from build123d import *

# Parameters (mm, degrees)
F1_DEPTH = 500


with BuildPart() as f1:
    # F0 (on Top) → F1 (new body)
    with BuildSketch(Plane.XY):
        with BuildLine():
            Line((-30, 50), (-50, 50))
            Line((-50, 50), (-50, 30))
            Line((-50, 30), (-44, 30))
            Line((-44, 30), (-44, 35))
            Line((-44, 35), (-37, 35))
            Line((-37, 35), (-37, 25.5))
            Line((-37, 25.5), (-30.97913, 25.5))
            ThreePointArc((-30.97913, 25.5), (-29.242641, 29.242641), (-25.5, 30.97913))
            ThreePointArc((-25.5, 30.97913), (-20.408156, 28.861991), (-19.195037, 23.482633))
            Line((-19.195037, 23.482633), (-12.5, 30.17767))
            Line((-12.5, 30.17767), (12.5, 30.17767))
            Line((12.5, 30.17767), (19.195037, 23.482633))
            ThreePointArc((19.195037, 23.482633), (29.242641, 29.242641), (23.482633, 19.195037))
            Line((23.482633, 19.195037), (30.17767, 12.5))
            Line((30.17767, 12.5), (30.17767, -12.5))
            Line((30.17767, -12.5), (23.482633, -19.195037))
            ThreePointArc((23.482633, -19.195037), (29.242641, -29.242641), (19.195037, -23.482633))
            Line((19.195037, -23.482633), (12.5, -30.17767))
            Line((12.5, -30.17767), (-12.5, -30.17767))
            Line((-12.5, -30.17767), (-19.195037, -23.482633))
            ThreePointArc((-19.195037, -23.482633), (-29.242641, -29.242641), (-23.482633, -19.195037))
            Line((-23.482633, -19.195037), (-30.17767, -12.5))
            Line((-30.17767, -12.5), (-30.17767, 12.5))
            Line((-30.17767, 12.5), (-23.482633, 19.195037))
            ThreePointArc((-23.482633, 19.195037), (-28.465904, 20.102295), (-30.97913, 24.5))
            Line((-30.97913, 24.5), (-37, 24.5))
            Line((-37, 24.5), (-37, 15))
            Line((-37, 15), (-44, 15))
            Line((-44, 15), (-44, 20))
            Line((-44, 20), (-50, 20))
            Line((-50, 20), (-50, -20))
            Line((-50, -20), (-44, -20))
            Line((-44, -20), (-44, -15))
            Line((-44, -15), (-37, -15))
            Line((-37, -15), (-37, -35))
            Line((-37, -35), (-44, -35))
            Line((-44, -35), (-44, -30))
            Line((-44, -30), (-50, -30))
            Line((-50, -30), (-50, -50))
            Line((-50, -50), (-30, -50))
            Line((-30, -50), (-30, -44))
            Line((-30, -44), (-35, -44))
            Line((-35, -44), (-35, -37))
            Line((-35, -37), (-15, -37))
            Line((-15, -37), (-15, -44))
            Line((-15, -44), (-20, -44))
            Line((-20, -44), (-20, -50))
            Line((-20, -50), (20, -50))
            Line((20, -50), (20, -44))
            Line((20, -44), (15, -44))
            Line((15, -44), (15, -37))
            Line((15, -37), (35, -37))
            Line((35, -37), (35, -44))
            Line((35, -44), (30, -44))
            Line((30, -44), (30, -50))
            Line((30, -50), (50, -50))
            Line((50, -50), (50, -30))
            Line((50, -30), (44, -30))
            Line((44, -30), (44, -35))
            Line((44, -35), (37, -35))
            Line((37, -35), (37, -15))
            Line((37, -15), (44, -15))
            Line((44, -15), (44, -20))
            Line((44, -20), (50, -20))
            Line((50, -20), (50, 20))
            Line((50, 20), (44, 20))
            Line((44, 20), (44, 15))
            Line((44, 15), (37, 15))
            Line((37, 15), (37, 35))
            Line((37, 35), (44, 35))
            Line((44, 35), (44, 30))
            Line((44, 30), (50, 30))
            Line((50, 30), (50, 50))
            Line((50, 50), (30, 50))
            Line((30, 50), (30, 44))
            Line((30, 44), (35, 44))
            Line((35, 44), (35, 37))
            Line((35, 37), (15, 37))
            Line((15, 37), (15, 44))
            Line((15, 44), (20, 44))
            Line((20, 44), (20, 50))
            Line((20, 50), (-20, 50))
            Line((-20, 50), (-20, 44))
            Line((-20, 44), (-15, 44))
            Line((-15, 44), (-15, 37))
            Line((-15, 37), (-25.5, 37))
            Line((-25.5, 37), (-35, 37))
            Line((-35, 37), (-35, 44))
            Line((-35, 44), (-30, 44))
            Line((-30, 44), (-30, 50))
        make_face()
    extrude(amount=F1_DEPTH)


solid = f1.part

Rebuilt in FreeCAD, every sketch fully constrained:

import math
import FreeCAD as App
import Part
import Sketcher
Q = App.Units.Quantity

doc = App.newDocument("Part")
body = doc.addObject("PartDesign::Body", "Body")

# Sketch on XY plane
sketch1 = body.newObject("Sketcher::SketchObject", "Sketch")
sketch1.AttachmentSupport = (doc.getObject("XY_Plane"), [""])
sketch1.MapMode = "FlatFace"
sketch1.addGeometry([
    Part.LineSegment(App.Vector(-30, 50, 0), App.Vector(-50, 50, 0)),  # 0
    Part.LineSegment(App.Vector(-50, 50, 0), App.Vector(-50, 30, 0)),  # 1
    Part.LineSegment(App.Vector(-50, 30, 0), App.Vector(-44, 30, 0)),  # 2
    Part.LineSegment(App.Vector(-44, 30, 0), App.Vector(-44, 35, 0)),  # 3
    Part.LineSegment(App.Vector(-44, 35, 0), App.Vector(-37, 35, 0)),  # 4
    Part.LineSegment(App.Vector(-37, 35, 0), App.Vector(-37, 26, 0)),  # 5
    Part.LineSegment(App.Vector(-37, 26, 0), App.Vector(-31, 26, 0)),  # 6
    Part.ArcOfCircle(Part.Circle(App.Vector(-25, 25, 0), App.Vector(0, 0, 1), 6), math.radians(95), math.radians(175)),  # 7
    Part.ArcOfCircle(Part.Circle(App.Vector(-25, 25, 0), App.Vector(0, 0, 1), 6), math.radians(-15), math.radians(95)),  # 8
    Part.LineSegment(App.Vector(-19, 23, 0), App.Vector(-12, 30, 0)),  # 9
    Part.LineSegment(App.Vector(-12, 30, 0), App.Vector(12, 30, 0)),  # 10
    Part.LineSegment(App.Vector(12, 30, 0), App.Vector(19, 23, 0)),  # 11
    Part.ArcOfCircle(Part.Circle(App.Vector(25, 25, 0), App.Vector(0, 0, 1), 6), math.radians(-105), math.radians(195)),  # 12
    Part.LineSegment(App.Vector(23, 19, 0), App.Vector(30, 12, 0)),  # 13
    Part.LineSegment(App.Vector(30, 12, 0), App.Vector(30, -12, 0)),  # 14
    Part.LineSegment(App.Vector(30, -12, 0), App.Vector(23, -19, 0)),  # 15
    Part.ArcOfCircle(Part.Circle(App.Vector(25, -25, 0), App.Vector(0, 0, 1), 6), math.radians(165), math.radians(465)),  # 16
    Part.LineSegment(App.Vector(19, -23, 0), App.Vector(12, -30, 0)),  # 17
    Part.LineSegment(App.Vector(12, -30, 0), App.Vector(-12, -30, 0)),  # 18
    Part.LineSegment(App.Vector(-12, -30, 0), App.Vector(-19, -23, 0)),  # 19
    Part.ArcOfCircle(Part.Circle(App.Vector(-25, -25, 0), App.Vector(0, 0, 1), 6), math.radians(75), math.radians(375)),  # 20
    Part.LineSegment(App.Vector(-23, -19, 0), App.Vector(-30, -12, 0)),  # 21
    Part.LineSegment(App.Vector(-30, -12, 0), App.Vector(-30, 12, 0)),  # 22
    Part.LineSegment(App.Vector(-30, 12, 0), App.Vector(-23, 19, 0)),  # 23
    Part.ArcOfCircle(Part.Circle(App.Vector(-25, 25, 0), App.Vector(0, 0, 1), 6), math.radians(-175), math.radians(-75)),  # 24
    Part.LineSegment(App.Vector(-31, 24, 0), App.Vector(-37, 24, 0)),  # 25
    Part.LineSegment(App.Vector(-37, 24, 0), App.Vector(-37, 15, 0)),  # 26
    Part.LineSegment(App.Vector(-37, 15, 0), App.Vector(-44, 15, 0)),  # 27
    Part.LineSegment(App.Vector(-44, 15, 0), App.Vector(-44, 20, 0)),  # 28
    Part.LineSegment(App.Vector(-44, 20, 0), App.Vector(-50, 20, 0)),  # 29
    Part.LineSegment(App.Vector(-50, 20, 0), App.Vector(-50, -20, 0)),  # 30
    Part.LineSegment(App.Vector(-50, -20, 0), App.Vector(-44, -20, 0)),  # 31
    Part.LineSegment(App.Vector(-44, -20, 0), App.Vector(-44, -15, 0)),  # 32
    Part.LineSegment(App.Vector(-44, -15, 0), App.Vector(-37, -15, 0)),  # 33
    Part.LineSegment(App.Vector(-37, -15, 0), App.Vector(-37, -35, 0)),  # 34
    Part.LineSegment(App.Vector(-37, -35, 0), App.Vector(-44, -35, 0)),  # 35
    Part.LineSegment(App.Vector(-44, -35, 0), App.Vector(-44, -30, 0)),  # 36
    Part.LineSegment(App.Vector(-44, -30, 0), App.Vector(-50, -30, 0)),  # 37
    Part.LineSegment(App.Vector(-50, -30, 0), App.Vector(-50, -50, 0)),  # 38
    Part.LineSegment(App.Vector(-50, -50, 0), App.Vector(-30, -50, 0)),  # 39
    Part.LineSegment(App.Vector(-30, -50, 0), App.Vector(-30, -44, 0)),  # 40
    Part.LineSegment(App.Vector(-30, -44, 0), App.Vector(-35, -44, 0)),  # 41
    Part.LineSegment(App.Vector(-35, -44, 0), App.Vector(-35, -37, 0)),  # 42
    Part.LineSegment(App.Vector(-35, -37, 0), App.Vector(-15, -37, 0)),  # 43
    Part.LineSegment(App.Vector(-15, -37, 0), App.Vector(-15, -44, 0)),  # 44
    Part.LineSegment(App.Vector(-15, -44, 0), App.Vector(-20, -44, 0)),  # 45
    Part.LineSegment(App.Vector(-20, -44, 0), App.Vector(-20, -50, 0)),  # 46
    Part.LineSegment(App.Vector(-20, -50, 0), App.Vector(20, -50, 0)),  # 47
    Part.LineSegment(App.Vector(20, -50, 0), App.Vector(20, -44, 0)),  # 48
    Part.LineSegment(App.Vector(20, -44, 0), App.Vector(15, -44, 0)),  # 49
    Part.LineSegment(App.Vector(15, -44, 0), App.Vector(15, -37, 0)),  # 50
    Part.LineSegment(App.Vector(15, -37, 0), App.Vector(35, -37, 0)),  # 51
    Part.LineSegment(App.Vector(35, -37, 0), App.Vector(35, -44, 0)),  # 52
    Part.LineSegment(App.Vector(35, -44, 0), App.Vector(30, -44, 0)),  # 53
    Part.LineSegment(App.Vector(30, -44, 0), App.Vector(30, -50, 0)),  # 54
    Part.LineSegment(App.Vector(30, -50, 0), App.Vector(50, -50, 0)),  # 55
    Part.LineSegment(App.Vector(50, -50, 0), App.Vector(50, -30, 0)),  # 56
    Part.LineSegment(App.Vector(50, -30, 0), App.Vector(44, -30, 0)),  # 57
    Part.LineSegment(App.Vector(44, -30, 0), App.Vector(44, -35, 0)),  # 58
    Part.LineSegment(App.Vector(44, -35, 0), App.Vector(37, -35, 0)),  # 59
    Part.LineSegment(App.Vector(37, -35, 0), App.Vector(37, -15, 0)),  # 60
    Part.LineSegment(App.Vector(37, -15, 0), App.Vector(44, -15, 0)),  # 61
    Part.LineSegment(App.Vector(44, -15, 0), App.Vector(44, -20, 0)),  # 62
    Part.LineSegment(App.Vector(44, -20, 0), App.Vector(50, -20, 0)),  # 63
    Part.LineSegment(App.Vector(50, -20, 0), App.Vector(50, 20, 0)),  # 64
    Part.LineSegment(App.Vector(50, 20, 0), App.Vector(44, 20, 0)),  # 65
    Part.LineSegment(App.Vector(44, 20, 0), App.Vector(44, 15, 0)),  # 66
    Part.LineSegment(App.Vector(44, 15, 0), App.Vector(37, 15, 0)),  # 67
    Part.LineSegment(App.Vector(37, 15, 0), App.Vector(37, 35, 0)),  # 68
    Part.LineSegment(App.Vector(37, 35, 0), App.Vector(44, 35, 0)),  # 69
    Part.LineSegment(App.Vector(44, 35, 0), App.Vector(44, 30, 0)),  # 70
    Part.LineSegment(App.Vector(44, 30, 0), App.Vector(50, 30, 0)),  # 71
    Part.LineSegment(App.Vector(50, 30, 0), App.Vector(50, 50, 0)),  # 72
    Part.LineSegment(App.Vector(50, 50, 0), App.Vector(30, 50, 0)),  # 73
    Part.LineSegment(App.Vector(30, 50, 0), App.Vector(30, 44, 0)),  # 74
    Part.LineSegment(App.Vector(30, 44, 0), App.Vector(35, 44, 0)),  # 75
    Part.LineSegment(App.Vector(35, 44, 0), App.Vector(35, 37, 0)),  # 76
    Part.LineSegment(App.Vector(35, 37, 0), App.Vector(15, 37, 0)),  # 77
    Part.LineSegment(App.Vector(15, 37, 0), App.Vector(15, 44, 0)),  # 78
    Part.LineSegment(App.Vector(15, 44, 0), App.Vector(20, 44, 0)),  # 79
    Part.LineSegment(App.Vector(20, 44, 0), App.Vector(20, 50, 0)),  # 80
    Part.LineSegment(App.Vector(20, 50, 0), App.Vector(-20, 50, 0)),  # 81
    Part.LineSegment(App.Vector(-20, 50, 0), App.Vector(-20, 44, 0)),  # 82
    Part.LineSegment(App.Vector(-20, 44, 0), App.Vector(-15, 44, 0)),  # 83
    Part.LineSegment(App.Vector(-15, 44, 0), App.Vector(-15, 37, 0)),  # 84
    Part.LineSegment(App.Vector(-15, 37, 0), App.Vector(-35, 37, 0)),  # 85
    Part.LineSegment(App.Vector(-35, 37, 0), App.Vector(-35, 44, 0)),  # 86
    Part.LineSegment(App.Vector(-35, 44, 0), App.Vector(-30, 44, 0)),  # 87
    Part.LineSegment(App.Vector(-30, 44, 0), App.Vector(-30, 50, 0)),  # 88
], False)
sketch1.addConstraint([
    Sketcher.Constraint("Coincident", 0, 2, 1, 1),
    Sketcher.Constraint("Coincident", 1, 2, 2, 1),
    Sketcher.Constraint("Coincident", 2, 2, 3, 1),
    Sketcher.Constraint("Coincident", 3, 2, 4, 1),
    Sketcher.Constraint("Coincident", 4, 2, 5, 1),
    Sketcher.Constraint("Coincident", 5, 2, 6, 1),
    Sketcher.Constraint("Coincident", 6, 2, 7, 2),
    Sketcher.Constraint("Tangent", 7, 1, 8, 2),
    Sketcher.Constraint("Coincident", 8, 1, 9, 1),
    Sketcher.Constraint("Coincident", 9, 2, 10, 1),
    Sketcher.Constraint("Coincident", 10, 2, 11, 1),
    Sketcher.Constraint("Coincident", 11, 2, 12, 2),
    Sketcher.Constraint("Coincident", 12, 1, 13, 1),
    Sketcher.Constraint("Coincident", 13, 2, 14, 1),
    Sketcher.Constraint("Coincident", 14, 2, 15, 1),
    Sketcher.Constraint("Coincident", 15, 2, 16, 2),
    Sketcher.Constraint("Coincident", 16, 1, 17, 1),
    Sketcher.Constraint("Coincident", 17, 2, 18, 1),
    Sketcher.Constraint("Coincident", 18, 2, 19, 1),
    Sketcher.Constraint("Coincident", 19, 2, 20, 2),
    Sketcher.Constraint("Coincident", 20, 1, 21, 1),
    Sketcher.Constraint("Coincident", 21, 2, 22, 1),
    Sketcher.Constraint("Coincident", 22, 2, 23, 1),
    Sketcher.Constraint("Coincident", 23, 2, 24, 2),
    Sketcher.Constraint("Coincident", 24, 1, 25, 1),
    Sketcher.Constraint("Coincident", 25, 2, 26, 1),
    Sketcher.Constraint("Coincident", 26, 2, 27, 1),
    Sketcher.Constraint("Coincident", 27, 2, 28, 1),
    Sketcher.Constraint("Coincident", 28, 2, 29, 1),
    Sketcher.Constraint("Coincident", 29, 2, 30, 1),
    Sketcher.Constraint("Coincident", 30, 2, 31, 1),
    Sketcher.Constraint("Coincident", 31, 2, 32, 1),
    Sketcher.Constraint("Coincident", 32, 2, 33, 1),
    Sketcher.Constraint("Coincident", 33, 2, 34, 1),
    Sketcher.Constraint("Coincident", 34, 2, 35, 1),
    Sketcher.Constraint("Coincident", 35, 2, 36, 1),
    Sketcher.Constraint("Coincident", 36, 2, 37, 1),
    Sketcher.Constraint("Coincident", 37, 2, 38, 1),
    Sketcher.Constraint("Coincident", 38, 2, 39, 1),
    Sketcher.Constraint("Coincident", 39, 2, 40, 1),
    Sketcher.Constraint("Coincident", 40, 2, 41, 1),
    Sketcher.Constraint("Coincident", 41, 2, 42, 1),
    Sketcher.Constraint("Coincident", 42, 2, 43, 1),
    Sketcher.Constraint("Coincident", 43, 2, 44, 1),
    Sketcher.Constraint("Coincident", 44, 2, 45, 1),
    Sketcher.Constraint("Coincident", 45, 2, 46, 1),
    Sketcher.Constraint("Coincident", 46, 2, 47, 1),
    Sketcher.Constraint("Coincident", 47, 2, 48, 1),
    Sketcher.Constraint("Coincident", 48, 2, 49, 1),
    Sketcher.Constraint("Coincident", 49, 2, 50, 1),
    Sketcher.Constraint("Coincident", 50, 2, 51, 1),
    Sketcher.Constraint("Coincident", 51, 2, 52, 1),
    Sketcher.Constraint("Coincident", 52, 2, 53, 1),
    Sketcher.Constraint("Coincident", 53, 2, 54, 1),
    Sketcher.Constraint("Coincident", 54, 2, 55, 1),
    Sketcher.Constraint("Coincident", 55, 2, 56, 1),
    Sketcher.Constraint("Coincident", 56, 2, 57, 1),
    Sketcher.Constraint("Coincident", 57, 2, 58, 1),
    Sketcher.Constraint("Coincident", 58, 2, 59, 1),
    Sketcher.Constraint("Coincident", 59, 2, 60, 1),
    Sketcher.Constraint("Coincident", 60, 2, 61, 1),
    Sketcher.Constraint("Coincident", 61, 2, 62, 1),
    Sketcher.Constraint("Coincident", 62, 2, 63, 1),
    Sketcher.Constraint("Coincident", 63, 2, 64, 1),
    Sketcher.Constraint("Coincident", 64, 2, 65, 1),
    Sketcher.Constraint("Coincident", 65, 2, 66, 1),
    Sketcher.Constraint("Coincident", 66, 2, 67, 1),
    Sketcher.Constraint("Coincident", 67, 2, 68, 1),
    Sketcher.Constraint("Coincident", 68, 2, 69, 1),
    Sketcher.Constraint("Coincident", 69, 2, 70, 1),
    Sketcher.Constraint("Coincident", 70, 2, 71, 1),
    Sketcher.Constraint("Coincident", 71, 2, 72, 1),
    Sketcher.Constraint("Coincident", 72, 2, 73, 1),
    Sketcher.Constraint("Coincident", 73, 2, 74, 1),
    Sketcher.Constraint("Coincident", 74, 2, 75, 1),
    Sketcher.Constraint("Coincident", 75, 2, 76, 1),
    Sketcher.Constraint("Coincident", 76, 2, 77, 1),
    Sketcher.Constraint("Coincident", 77, 2, 78, 1),
    Sketcher.Constraint("Coincident", 78, 2, 79, 1),
    Sketcher.Constraint("Coincident", 79, 2, 80, 1),
    Sketcher.Constraint("Coincident", 80, 2, 81, 1),
    Sketcher.Constraint("Coincident", 81, 2, 82, 1),
    Sketcher.Constraint("Coincident", 82, 2, 83, 1),
    Sketcher.Constraint("Coincident", 83, 2, 84, 1),
    Sketcher.Constraint("Coincident", 84, 2, 85, 1),
    Sketcher.Constraint("Coincident", 85, 2, 86, 1),
    Sketcher.Constraint("Coincident", 86, 2, 87, 1),
    Sketcher.Constraint("Coincident", 87, 2, 88, 1),
    Sketcher.Constraint("Coincident", 88, 2, 0, 1),
    Sketcher.Constraint("Horizontal", 0),
    Sketcher.Constraint("Vertical", 1),
    Sketcher.Constraint("Horizontal", 2),
    Sketcher.Constraint("Vertical", 3),
    Sketcher.Constraint("Horizontal", 4),
    Sketcher.Constraint("Vertical", 5),
    Sketcher.Constraint("Horizontal", 6),
    Sketcher.Constraint("Horizontal", 10),
    Sketcher.Constraint("Vertical", 14),
    Sketcher.Constraint("Horizontal", 18),
    Sketcher.Constraint("Vertical", 22),
    Sketcher.Constraint("Horizontal", 25),
    Sketcher.Constraint("Vertical", 26),
    Sketcher.Constraint("Horizontal", 27),
    Sketcher.Constraint("Vertical", 28),
    Sketcher.Constraint("Horizontal", 29),
    Sketcher.Constraint("Vertical", 30),
    Sketcher.Constraint("Horizontal", 31),
    Sketcher.Constraint("Vertical", 32),
    Sketcher.Constraint("Horizontal", 33),
    Sketcher.Constraint("Vertical", 34),
    Sketcher.Constraint("Horizontal", 35),
    Sketcher.Constraint("Vertical", 36),
    Sketcher.Constraint("Horizontal", 37),
    Sketcher.Constraint("Vertical", 38),
    Sketcher.Constraint("Horizontal", 39),
    Sketcher.Constraint("Vertical", 40),
    Sketcher.Constraint("Horizontal", 41),
    Sketcher.Constraint("Vertical", 42),
    Sketcher.Constraint("Horizontal", 43),
    Sketcher.Constraint("Vertical", 44),
    Sketcher.Constraint("Horizontal", 45),
    Sketcher.Constraint("Vertical", 46),
    Sketcher.Constraint("Horizontal", 47),
    Sketcher.Constraint("Vertical", 48),
    Sketcher.Constraint("Horizontal", 49),
    Sketcher.Constraint("Vertical", 50),
    Sketcher.Constraint("Horizontal", 51),
    Sketcher.Constraint("Vertical", 52),
    Sketcher.Constraint("Horizontal", 53),
    Sketcher.Constraint("Vertical", 54),
    Sketcher.Constraint("Horizontal", 55),
    Sketcher.Constraint("Vertical", 56),
    Sketcher.Constraint("Horizontal", 57),
    Sketcher.Constraint("Vertical", 58),
    Sketcher.Constraint("Horizontal", 59),
    Sketcher.Constraint("Vertical", 60),
    Sketcher.Constraint("Horizontal", 61),
    Sketcher.Constraint("Vertical", 62),
    Sketcher.Constraint("Horizontal", 63),
    Sketcher.Constraint("Vertical", 64),
    Sketcher.Constraint("Horizontal", 65),
    Sketcher.Constraint("Vertical", 66),
    Sketcher.Constraint("Horizontal", 67),
    Sketcher.Constraint("Vertical", 68),
    Sketcher.Constraint("Horizontal", 69),
    Sketcher.Constraint("Vertical", 70),
    Sketcher.Constraint("Horizontal", 71),
    Sketcher.Constraint("Vertical", 72),
    Sketcher.Constraint("Horizontal", 73),
    Sketcher.Constraint("Vertical", 74),
    Sketcher.Constraint("Horizontal", 75),
    Sketcher.Constraint("Vertical", 76),
    Sketcher.Constraint("Horizontal", 77),
    Sketcher.Constraint("Vertical", 78),
    Sketcher.Constraint("Horizontal", 79),
    Sketcher.Constraint("Vertical", 80),
    Sketcher.Constraint("Horizontal", 81),
    Sketcher.Constraint("Vertical", 82),
    Sketcher.Constraint("Horizontal", 83),
    Sketcher.Constraint("Vertical", 84),
    Sketcher.Constraint("Horizontal", 85),
    Sketcher.Constraint("Vertical", 86),
    Sketcher.Constraint("Horizontal", 87),
    Sketcher.Constraint("Vertical", 88),
    Sketcher.Constraint("Coincident", 24, 3, 7, 3),
    Sketcher.Constraint("Equal", 7, 8),
    Sketcher.Constraint("Equal", 8, 12),
    Sketcher.Constraint("Equal", 12, 16),
    Sketcher.Constraint("Equal", 16, 20),
    Sketcher.Constraint("Equal", 20, 24),
    Sketcher.Constraint("Symmetric", 7, 3, 16, 3, -1, 1),
    Sketcher.Constraint("Symmetric", 12, 3, 20, 3, -1, 1),
    Sketcher.Constraint("Symmetric", 9, 2, 17, 2, -1, 1),
    Sketcher.Constraint("Symmetric", 13, 2, 21, 2, -1, 1),
    Sketcher.Constraint("Symmetric", 0, 2, 55, 2, -1, 1),
    Sketcher.Constraint("Symmetric", 2, 2, 57, 2, -1, 1),
    Sketcher.Constraint("Symmetric", 4, 2, 59, 2, -1, 1),
    Sketcher.Constraint("Symmetric", 26, 2, 60, 2, -1, 1),
    Sketcher.Constraint("Symmetric", 28, 2, 62, 2, -1, 1),
    Sketcher.Constraint("Symmetric", 30, 2, 64, 2, -1, 1),
    Sketcher.Constraint("Symmetric", 32, 2, 66, 2, -1, 1),
    Sketcher.Constraint("Symmetric", 34, 2, 68, 2, -1, 1),
    Sketcher.Constraint("Symmetric", 36, 2, 70, 2, -1, 1),
    Sketcher.Constraint("Symmetric", 38, 2, 72, 2, -1, 1),
    Sketcher.Constraint("Symmetric", 40, 2, 74, 2, -1, 1),
    Sketcher.Constraint("Symmetric", 42, 2, 76, 2, -1, 1),
    Sketcher.Constraint("Symmetric", 44, 2, 78, 2, -1, 1),
    Sketcher.Constraint("Symmetric", 46, 2, 80, 2, -1, 1),
    Sketcher.Constraint("Symmetric", 48, 2, 82, 2, -1, 1),
    Sketcher.Constraint("Symmetric", 50, 2, 84, 2, -1, 1),
    Sketcher.Constraint("Symmetric", 52, 2, 86, 2, -1, 1),
    Sketcher.Constraint("Symmetric", 7, 3, 12, 3, -2),
    Sketcher.Constraint("Symmetric", 45, 2, 48, 2, -2),
    Sketcher.Constraint("Symmetric", 43, 2, 50, 2, -2),
    Sketcher.Constraint("Symmetric", 41, 2, 52, 2, -2),
    Sketcher.Constraint("Symmetric", 39, 2, 54, 2, -2),
    Sketcher.Constraint("Symmetric", 37, 2, 56, 2, -2),
    Sketcher.Constraint("Symmetric", 35, 2, 58, 2, -2),
    Sketcher.Constraint("Symmetric", 33, 2, 60, 2, -2),
    Sketcher.Constraint("Symmetric", 31, 2, 62, 2, -2),
    Sketcher.Constraint("Perpendicular", 9, 11),
    Sketcher.Constraint("Parallel", 11, 13),
    Sketcher.Constraint("Perpendicular", 13, 15),
    Sketcher.Constraint("Parallel", 15, 17),
    Sketcher.Constraint("Perpendicular", 17, 19),
    Sketcher.Constraint("Parallel", 19, 21),
    Sketcher.Constraint("Perpendicular", 21, 23),
    Sketcher.Constraint("Horizontal", 8, 1, 11, 2),
    Sketcher.Constraint("Horizontal", 16, 1, 19, 2),
    Sketcher.Constraint("Horizontal", 15, 2, 20, 1),
    Sketcher.Constraint("Horizontal", 14, 2, 21, 2),
    Sketcher.Constraint("Horizontal", 13, 2, 22, 2),
    Sketcher.Constraint("Horizontal", 41, 2, 44, 2),
    Sketcher.Constraint("Horizontal", 39, 2, 46, 2),
    Sketcher.Constraint("Vertical", 6, 2, 24, 1),
    Sketcher.Constraint("Vertical", 3, 2, 27, 2),
    Sketcher.Constraint("Vertical", 1, 2, 29, 2),
    Sketcher.Constraint("Vertical", 40, 2, 87, 2),
    Sketcher.Constraint("Equal", 39, 43),
    Sketcher.Constraint("Equal", 41, 45),
    Sketcher.Constraint("Equal", 85, 1),
    Sketcher.Constraint("Equal", 87, 3),
    Sketcher.Constraint("Equal", 18, 14),
    Sketcher.Constraint("Equal", 5, 26),
    Sketcher.Constraint("Equal", 3, 28),
    Sketcher.Constraint("Equal", 81, 30),
    Sketcher.Constraint("Equal", 1, 34),
    Sketcher.Constraint("Equal", 71, 40),
    Sketcher.Constraint("Equal", 69, 42),
    Sketcher.Constraint("Equal", 11, 13),
    Sketcher.Constraint("Radius", 8, Q("5.999999 mm")),
    Sketcher.Constraint("DistanceX", 0, 2, 0, 1, Q("20 mm")),
    Sketcher.Constraint("DistanceX", 2, 1, 2, 2, Q("6 mm")),
    Sketcher.Constraint("DistanceX", 4, 1, 4, 2, Q("7 mm")),
    Sketcher.Constraint("DistanceX", 10, 1, 10, 2, Q("25 mm")),
    Sketcher.Constraint("DistanceX", 41, 2, 41, 1, Q("5 mm")),
    Sketcher.Constraint("DistanceX", 47, 1, 47, 2, Q("40 mm")),
    Sketcher.Constraint("DistanceY", 5, 2, 5, 1, Q("9.5 mm")),
    Sketcher.Constraint("DistanceX", 8, 3, -1, 1, Q("24.999999 mm")),
    Sketcher.Constraint("DistanceX", 7, 1, -1, 1, Q("25.5 mm")),
    Sketcher.Constraint("DistanceY", -1, 1, 9, 2, Q("30.17767 mm")),
])
pad1 = body.newObject("PartDesign::Pad", "Pad")
pad1.Profile = sketch1
pad1.Length = 500

doc.recompute()
